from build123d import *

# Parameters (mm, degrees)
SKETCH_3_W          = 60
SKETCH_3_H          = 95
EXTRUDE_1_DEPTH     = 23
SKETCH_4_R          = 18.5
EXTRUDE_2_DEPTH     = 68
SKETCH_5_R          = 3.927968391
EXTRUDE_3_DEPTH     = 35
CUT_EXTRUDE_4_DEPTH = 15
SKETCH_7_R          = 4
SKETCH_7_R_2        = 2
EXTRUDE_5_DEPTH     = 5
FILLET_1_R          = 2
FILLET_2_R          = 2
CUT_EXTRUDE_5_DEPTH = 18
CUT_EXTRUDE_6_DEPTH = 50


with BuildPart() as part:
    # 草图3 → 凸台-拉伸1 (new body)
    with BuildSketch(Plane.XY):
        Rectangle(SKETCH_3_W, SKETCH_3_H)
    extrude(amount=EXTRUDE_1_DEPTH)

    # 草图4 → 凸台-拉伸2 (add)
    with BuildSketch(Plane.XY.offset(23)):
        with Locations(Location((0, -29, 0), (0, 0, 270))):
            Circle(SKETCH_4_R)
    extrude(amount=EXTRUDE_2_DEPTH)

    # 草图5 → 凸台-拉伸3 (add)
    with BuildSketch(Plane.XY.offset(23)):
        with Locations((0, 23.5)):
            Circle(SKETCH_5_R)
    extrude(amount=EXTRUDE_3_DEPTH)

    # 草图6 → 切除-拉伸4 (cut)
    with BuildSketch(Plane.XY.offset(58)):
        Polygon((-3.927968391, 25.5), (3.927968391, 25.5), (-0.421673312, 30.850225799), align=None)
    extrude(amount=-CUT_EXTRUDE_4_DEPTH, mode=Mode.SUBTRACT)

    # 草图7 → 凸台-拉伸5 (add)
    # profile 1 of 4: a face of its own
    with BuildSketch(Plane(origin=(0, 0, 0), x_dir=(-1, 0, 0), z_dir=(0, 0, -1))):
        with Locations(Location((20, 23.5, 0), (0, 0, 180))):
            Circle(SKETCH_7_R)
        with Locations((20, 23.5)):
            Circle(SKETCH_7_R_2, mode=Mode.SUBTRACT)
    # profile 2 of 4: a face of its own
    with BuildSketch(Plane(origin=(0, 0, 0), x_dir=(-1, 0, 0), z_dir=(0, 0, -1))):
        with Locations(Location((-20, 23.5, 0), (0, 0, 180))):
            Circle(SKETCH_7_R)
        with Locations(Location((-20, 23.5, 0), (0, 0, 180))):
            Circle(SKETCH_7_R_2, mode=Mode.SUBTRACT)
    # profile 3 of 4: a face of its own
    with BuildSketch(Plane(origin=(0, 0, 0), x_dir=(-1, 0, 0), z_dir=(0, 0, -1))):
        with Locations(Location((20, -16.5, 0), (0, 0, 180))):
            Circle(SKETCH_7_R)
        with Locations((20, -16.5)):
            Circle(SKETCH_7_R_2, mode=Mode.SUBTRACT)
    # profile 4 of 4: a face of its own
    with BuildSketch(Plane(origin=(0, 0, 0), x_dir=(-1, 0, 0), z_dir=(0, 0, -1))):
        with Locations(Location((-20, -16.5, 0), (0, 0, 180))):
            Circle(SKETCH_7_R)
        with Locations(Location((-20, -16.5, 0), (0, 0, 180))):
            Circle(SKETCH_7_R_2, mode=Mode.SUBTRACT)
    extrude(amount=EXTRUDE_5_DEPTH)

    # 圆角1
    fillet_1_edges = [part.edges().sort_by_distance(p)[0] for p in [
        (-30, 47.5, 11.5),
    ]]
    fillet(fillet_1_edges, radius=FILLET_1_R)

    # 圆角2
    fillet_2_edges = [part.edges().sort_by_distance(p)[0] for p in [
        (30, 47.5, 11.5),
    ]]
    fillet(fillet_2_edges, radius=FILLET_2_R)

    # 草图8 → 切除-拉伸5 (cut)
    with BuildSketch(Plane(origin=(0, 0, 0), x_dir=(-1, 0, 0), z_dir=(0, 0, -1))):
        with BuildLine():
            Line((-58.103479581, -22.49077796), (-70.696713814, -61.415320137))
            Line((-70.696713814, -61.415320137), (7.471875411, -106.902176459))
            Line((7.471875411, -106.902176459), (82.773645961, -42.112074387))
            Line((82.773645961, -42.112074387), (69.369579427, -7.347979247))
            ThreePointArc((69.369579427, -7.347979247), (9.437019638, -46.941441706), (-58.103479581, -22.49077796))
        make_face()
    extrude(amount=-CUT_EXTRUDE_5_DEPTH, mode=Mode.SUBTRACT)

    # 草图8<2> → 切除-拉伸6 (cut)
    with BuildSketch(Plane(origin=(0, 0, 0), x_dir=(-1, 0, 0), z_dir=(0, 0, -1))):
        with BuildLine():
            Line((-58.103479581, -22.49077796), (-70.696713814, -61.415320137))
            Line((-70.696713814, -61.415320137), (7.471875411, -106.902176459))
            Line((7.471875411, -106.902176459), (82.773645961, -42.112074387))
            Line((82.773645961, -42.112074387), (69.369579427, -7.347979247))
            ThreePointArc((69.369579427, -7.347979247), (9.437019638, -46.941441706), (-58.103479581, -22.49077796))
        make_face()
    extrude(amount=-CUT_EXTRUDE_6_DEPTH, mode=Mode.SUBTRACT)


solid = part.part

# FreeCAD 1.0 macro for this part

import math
import FreeCAD as App
import Part
import Sketcher
Q = App.Units.Quantity


def edges_at(feature, points):
    """Names of the edges that pass closest to the given points."""
    edges = feature.Shape.Edges
    near = lambda p: min(range(len(edges)), key=lambda i: edges[i].distToShape(Part.Vertex(*p))[0])
    return sorted({f"Edge{near(p) + 1}" for p in points})


def add_polygon(sketch, points):
    """Adds a closed chain of lines whose ends are joined by coincident constraints."""
    first, n = sketch.GeometryCount, len(points)
    for a, b in zip(points, points[1:] + points[:1]):
        sketch.addGeometry(Part.LineSegment(App.Vector(*a, 0), App.Vector(*b, 0)), False)
    for i in range(n):
        sketch.addConstraint(Sketcher.Constraint("Coincident", first + i, 2, first + (i + 1) % n, 1))

doc = App.newDocument("Part")
body = doc.addObject("PartDesign::Body", "Body")

# Sketch on XY plane
sketch1 = doc.addObject("Sketcher::SketchObject", "Sketch")
body.addObject(sketch1)
sketch1.AttachmentSupport = (doc.XY_Plane, [""])
sketch1.MapMode = "FlatFace"
add_polygon(sketch1, [(-30, 48), (-30, -48), (30, -48), (30, 48)])  # lines 0-3
sketch1.addConstraint([
    Sketcher.Constraint("Vertical", 0),
    Sketcher.Constraint("Horizontal", 1),
    Sketcher.Constraint("Vertical", 2),
    Sketcher.Constraint("Horizontal", 3),
    Sketcher.Constraint("Symmetric", 0, 2, 2, 2, -1, 1),
    Sketcher.Constraint("DistanceX", 1, 1, 1, 2, Q("60 mm")),
    Sketcher.Constraint("DistanceY", 0, 2, 0, 1, Q("95 mm")),
])
pad1 = doc.addObject("PartDesign::Pad", "Pad")
body.addObject(pad1)
pad1.Profile = sketch1
pad1.Length = 23

# Sketch on XY plane
sketch2 = doc.addObject("Sketcher::SketchObject", "Sketch001")
body.addObject(sketch2)
sketch2.AttachmentSupport = (doc.XY_Plane, [""])
sketch2.MapMode = "FlatFace"
sketch2.AttachmentOffset = App.Placement(App.Vector(0, 0, 23), App.Rotation())
sketch2.addGeometry(Part.Circle(App.Vector(0, -29, 0), App.Vector(0, 0, 1), 18), False)
sketch2.addConstraint([
    Sketcher.Constraint("PointOnObject", 0, 3, -2),
    Sketcher.Constraint("Diameter", 0, Q("37 mm")),
    Sketcher.Constraint("DistanceY", 0, 3, -1, 1, Q("29 mm")),
])
pad2 = doc.addObject("PartDesign::Pad", "Pad001")
body.addObject(pad2)
pad2.Profile = sketch2
pad2.Length = 68

# Sketch on XY plane
sketch3 = doc.addObject("Sketcher::SketchObject", "Sketch002")
body.addObject(sketch3)
sketch3.AttachmentSupport = (doc.XY_Plane, [""])
sketch3.MapMode = "FlatFace"
sketch3.AttachmentOffset = App.Placement(App.Vector(0, 0, 23), App.Rotation())
sketch3.addGeometry(Part.Circle(App.Vector(0, 23.5, 0), App.Vector(0, 0, 1), 3.9), False)
sketch3.addConstraint([
    Sketcher.Constraint("PointOnObject", 0, 3, -2),
    Sketcher.Constraint("DistanceY", -1, 1, 0, 3, Q("23.5 mm")),
    Sketcher.Constraint("Diameter", 0, Q("7.855937 mm")),
])
pad3 = doc.addObject("PartDesign::Pad", "Pad002")
body.addObject(pad3)
pad3.Profile = sketch3
pad3.Length = 35

# Sketch on XY plane
sketch4 = doc.addObject("Sketcher::SketchObject", "Sketch003")
body.addObject(sketch4)
sketch4.AttachmentSupport = (doc.XY_Plane, [""])
sketch4.MapMode = "FlatFace"
sketch4.AttachmentOffset = App.Placement(App.Vector(0, 0, 58), App.Rotation())
add_polygon(sketch4, [(-4, 26), (4, 26), (0, 31)])  # lines 0-2
sketch4.addConstraint([
    Sketcher.Constraint("Horizontal", 0),
    Sketcher.Constraint("DistanceY", -1, 1, 0, 2, Q("25.5 mm")),
    Sketcher.Constraint("DistanceX", 0, 1, 0, 2, Q("7.855937 mm")),
    Sketcher.Constraint("DistanceX", -1, 1, 0, 2, Q("3.927968 mm")),
    Sketcher.Constraint("DistanceX", 1, 2, 0, 2, Q("4.349642 mm")),
    Sketcher.Constraint("Distance", 1, Q("6.895237 mm")),
])
pocket1 = doc.addObject("PartDesign::Pocket", "Pocket")
body.addObject(pocket1)
pocket1.Profile = sketch4
pocket1.Length = 15

# Sketch on XY plane
sketch5 = doc.addObject("Sketcher::SketchObject", "Sketch004")
body.addObject(sketch5)
sketch5.AttachmentSupport = (doc.XY_Plane, [""])
sketch5.MapMode = "FlatFace"
sketch5.addGeometry([
    Part.Circle(App.Vector(-20, 23.5, 0), App.Vector(0, 0, 1), 4),  # 0
    Part.Circle(App.Vector(-20, 23.5, 0), App.Vector(0, 0, 1), 2),  # 1
    Part.Circle(App.Vector(20, 23.5, 0), App.Vector(0, 0, 1), 4),  # 2
    Part.Circle(App.Vector(20, 23.5, 0), App.Vector(0, 0, 1), 2),  # 3
    Part.Circle(App.Vector(-20, -16.5, 0), App.Vector(0, 0, 1), 4),  # 4
    Part.Circle(App.Vector(-20, -16.5, 0), App.Vector(0, 0, 1), 2),  # 5
    Part.Circle(App.Vector(20, -16.5, 0), App.Vector(0, 0, 1), 4),  # 6
    Part.Circle(App.Vector(20, -16.5, 0), App.Vector(0, 0, 1), 2),  # 7
], False)
sketch5.addConstraint([
    Sketcher.Constraint("Coincident", 1, 3, 0, 3),
    Sketcher.Constraint("Coincident", 3, 3, 2, 3),
    Sketcher.Constraint("Coincident", 5, 3, 4, 3),
    Sketcher.Constraint("Coincident", 7, 3, 6, 3),
    Sketcher.Constraint("Equal", 0, 2),
    Sketcher.Constraint("Equal", 1, 3),
    Sketcher.Constraint("Equal", 2, 4),
    Sketcher.Constraint("Equal", 3, 5),
    Sketcher.Constraint("Equal", 4, 6),
    Sketcher.Constraint("Equal", 5, 7),
    Sketcher.Constraint("Symmetric", 0, 3, 2, 3, -2),
    Sketcher.Constraint("Symmetric", 4, 3, 6, 3, -2),
    Sketcher.Constraint("Vertical", 1, 3, 4, 3),
    Sketcher.Constraint("Diameter", 0, Q("8 mm")),
    Sketcher.Constraint("Diameter", 1, Q("4 mm")),
    Sketcher.Constraint("DistanceX", 0, 3, -1, 1, Q("20 mm")),
    Sketcher.Constraint("DistanceY", 4, 3, 0, 3, Q("40 mm")),
    Sketcher.Constraint("DistanceY", -1, 1, 0, 3, Q("23.5 mm")),
])
pad4 = doc.addObject("PartDesign::Pad", "Pad003")
body.addObject(pad4)
pad4.Profile = sketch5
pad4.Length = 5
pad4.Reversed = True
doc.recompute()

fillet = doc.addObject("PartDesign::Fillet", "Fillet")
body.addObject(fillet)
fillet.Base = (pad4, edges_at(pad4, [(-30, 47.5, 11.5)]))
fillet.Radius = 2
doc.recompute()

fillet2 = doc.addObject("PartDesign::Fillet", "Fillet001")
body.addObject(fillet2)
fillet2.Base = (fillet, edges_at(fillet, [(30, 47.5, 11.5)]))
fillet2.Radius = 2

# Sketch on XY plane
sketch6 = doc.addObject("Sketcher::SketchObject", "Sketch005")
body.addObject(sketch6)
sketch6.AttachmentSupport = (doc.XY_Plane, [""])
sketch6.MapMode = "FlatFace"
sketch6.addGeometry([
    Part.LineSegment(App.Vector(58, -22, 0), App.Vector(71, -61, 0)),  # 0
    Part.LineSegment(App.Vector(71, -61, 0), App.Vector(-7, -107, 0)),  # 1
    Part.LineSegment(App.Vector(-7, -107, 0), App.Vector(-83, -42, 0)),  # 2
    Part.LineSegment(App.Vector(-83, -42, 0), App.Vector(-69, -7, 0)),  # 3
    Part.ArcOfCircle(Part.Circle(App.Vector(0, 32, 0), App.Vector(0, 0, 1), 80), math.radians(-150), math.radians(-43)),  # 4
], False)
sketch6.addConstraint([
    Sketcher.Constraint("Coincident", 0, 2, 1, 1),
    Sketcher.Constraint("Coincident", 1, 2, 2, 1),
    Sketcher.Constraint("Coincident", 2, 2, 3, 1),
    Sketcher.Constraint("Coincident", 3, 2, 4, 1),
    Sketcher.Constraint("Coincident", 4, 2, 0, 1),
    Sketcher.Constraint("PointOnObject", 4, 3, -2),
    Sketcher.Constraint("Radius", 4, Q("80 mm")),
    Sketcher.Constraint("DistanceY", -1, 1, 4, 3, Q("32.5 mm")),
    Sketcher.Constraint("DistanceY", 1, 2, 4, 2, Q("84.411398 mm")),
    Sketcher.Constraint("DistanceY", 4, 2, 3, 2, Q("15.142799 mm")),
    Sketcher.Constraint("Distance", 1, Q("90.439938 mm")),
    Sketcher.Constraint("Distance", 2, Q("99.338381 mm")),
    Sketcher.Constraint("DistanceY", 0, 2, -1, 1, Q("61.41532 mm")),
    Sketcher.Constraint("DistanceX", 3, 2, -1, 1, Q("69.369579 mm")),
    Sketcher.Constraint("DistanceX", 2, 2, 1, 2, Q("75.301771 mm")),
    Sketcher.Constraint("Distance", 0, Q("40.910995 mm")),
])
pocket2 = doc.addObject("PartDesign::Pocket", "Pocket001")
body.addObject(pocket2)
pocket2.Profile = sketch6
pocket2.Length = 18
pocket2.Reversed = True

# Sketch on XY plane
sketch7 = doc.addObject("Sketcher::SketchObject", "Sketch006")
body.addObject(sketch7)
sketch7.AttachmentSupport = (doc.XY_Plane, [""])
sketch7.MapMode = "FlatFace"
sketch7.addGeometry([
    Part.LineSegment(App.Vector(58, -22, 0), App.Vector(71, -61, 0)),  # 0
    Part.LineSegment(App.Vector(71, -61, 0), App.Vector(-7, -107, 0)),  # 1
    Part.LineSegment(App.Vector(-7, -107, 0), App.Vector(-83, -42, 0)),  # 2
    Part.LineSegment(App.Vector(-83, -42, 0), App.Vector(-69, -7, 0)),  # 3
    Part.ArcOfCircle(Part.Circle(App.Vector(0, 32, 0), App.Vector(0, 0, 1), 80), math.radians(-150), math.radians(-43)),  # 4
], False)
sketch7.addConstraint([
    Sketcher.Constraint("Coincident", 0, 2, 1, 1),
    Sketcher.Constraint("Coincident", 1, 2, 2, 1),
    Sketcher.Constraint("Coincident", 2, 2, 3, 1),
    Sketcher.Constraint("Coincident", 3, 2, 4, 1),
    Sketcher.Constraint("Coincident", 4, 2, 0, 1),
    Sketcher.Constraint("PointOnObject", 4, 3, -2),
    Sketcher.Constraint("Radius", 4, Q("80 mm")),
    Sketcher.Constraint("DistanceY", -1, 1, 4, 3, Q("32.5 mm")),
    Sketcher.Constraint("DistanceY", 1, 2, 4, 2, Q("84.411398 mm")),
    Sketcher.Constraint("DistanceY", 4, 2, 3, 2, Q("15.142799 mm")),
    Sketcher.Constraint("Distance", 1, Q("90.439938 mm")),
    Sketcher.Constraint("Distance", 2, Q("99.338381 mm")),
    Sketcher.Constraint("DistanceY", 0, 2, -1, 1, Q("61.41532 mm")),
    Sketcher.Constraint("DistanceX", 3, 2, -1, 1, Q("69.369579 mm")),
    Sketcher.Constraint("DistanceX", 2, 2, 1, 2, Q("75.301771 mm")),
    Sketcher.Constraint("Distance", 0, Q("40.910995 mm")),
])
pocket3 = doc.addObject("PartDesign::Pocket", "Pocket002")
body.addObject(pocket3)
pocket3.Profile = sketch7
pocket3.Length = 50
pocket3.Reversed = True

doc.recompute()
